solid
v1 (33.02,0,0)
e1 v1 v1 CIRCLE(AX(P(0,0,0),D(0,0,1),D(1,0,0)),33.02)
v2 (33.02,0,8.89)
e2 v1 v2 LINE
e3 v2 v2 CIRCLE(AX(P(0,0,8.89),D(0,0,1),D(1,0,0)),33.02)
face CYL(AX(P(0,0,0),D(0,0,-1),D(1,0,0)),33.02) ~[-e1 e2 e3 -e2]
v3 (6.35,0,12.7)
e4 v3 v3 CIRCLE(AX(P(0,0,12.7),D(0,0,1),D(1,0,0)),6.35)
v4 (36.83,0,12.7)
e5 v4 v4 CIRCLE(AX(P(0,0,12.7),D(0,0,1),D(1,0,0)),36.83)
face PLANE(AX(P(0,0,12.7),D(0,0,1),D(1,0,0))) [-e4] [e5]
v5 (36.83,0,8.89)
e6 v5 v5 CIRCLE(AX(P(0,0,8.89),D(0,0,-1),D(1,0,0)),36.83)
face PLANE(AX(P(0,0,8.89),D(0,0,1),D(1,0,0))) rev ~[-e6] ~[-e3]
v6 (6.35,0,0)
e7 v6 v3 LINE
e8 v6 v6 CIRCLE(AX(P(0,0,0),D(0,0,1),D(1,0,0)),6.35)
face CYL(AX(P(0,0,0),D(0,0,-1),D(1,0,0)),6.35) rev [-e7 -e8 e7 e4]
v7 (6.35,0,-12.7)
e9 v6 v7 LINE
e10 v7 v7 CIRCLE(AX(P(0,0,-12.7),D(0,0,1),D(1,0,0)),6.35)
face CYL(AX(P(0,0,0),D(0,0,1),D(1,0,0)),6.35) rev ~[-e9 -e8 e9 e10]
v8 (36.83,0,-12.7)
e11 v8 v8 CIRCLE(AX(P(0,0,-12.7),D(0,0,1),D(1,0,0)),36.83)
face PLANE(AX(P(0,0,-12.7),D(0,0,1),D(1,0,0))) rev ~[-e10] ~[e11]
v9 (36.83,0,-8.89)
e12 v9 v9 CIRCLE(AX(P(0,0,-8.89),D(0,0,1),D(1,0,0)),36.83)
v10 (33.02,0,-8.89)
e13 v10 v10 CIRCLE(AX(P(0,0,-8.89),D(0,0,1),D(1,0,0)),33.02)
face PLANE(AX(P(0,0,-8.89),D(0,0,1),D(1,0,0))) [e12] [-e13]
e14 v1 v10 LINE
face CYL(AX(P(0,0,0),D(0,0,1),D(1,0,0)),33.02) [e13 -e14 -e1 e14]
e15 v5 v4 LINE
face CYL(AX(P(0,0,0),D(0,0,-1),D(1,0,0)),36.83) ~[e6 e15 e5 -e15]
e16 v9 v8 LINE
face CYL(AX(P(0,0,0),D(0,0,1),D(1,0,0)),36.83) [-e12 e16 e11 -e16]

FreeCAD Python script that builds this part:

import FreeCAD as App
import Part
import Sketcher
Q = App.Units.Quantity

doc = App.newDocument("Part")
params = doc.addObject("Spreadsheet::Sheet", "Params")
for row, (alias, value) in enumerate([
    ("sketch1_diameter", "2.9 in"),
    ("sketch1_diameter2", "0.5 in"),
    ("pad1_length", "1 in"),
    ("sketch2_diameter", "3 in"),
    ("sketch2_diameter2", "2.6 in"),
    ("pocket1_length", "0.7 in"),
], start=1):
    params.set(f"A{row}", alias)
    params.set(f"B{row}", "=" + value)
    params.setAlias(f"B{row}", alias)

body = doc.addObject("PartDesign::Body", "Body")

sketch1 = doc.addObject("Sketcher::SketchObject", "Sketch")
body.addObject(sketch1)
sketch1.AttachmentSupport = (doc.XY_Plane, [""])
sketch1.MapMode = "FlatFace"
sketch1.addGeometry([
    Part.Circle(App.Vector(0, 0, 0), App.Vector(0, 0, 1), 37),
    Part.Circle(App.Vector(0, 0, 0), App.Vector(0, 0, 1), 6),
], False)
sketch1.addConstraint([
    Sketcher.Constraint("Coincident", 0, 3, -1, 1),
    Sketcher.Constraint("Coincident", 1, 3, -1, 1),
    Sketcher.Constraint("Diameter", 0, Q("2.9 in")),
    Sketcher.Constraint("Diameter", 1, Q("0.5 in")),
])
sketch1.setExpression("Constraints[2]", "Params.sketch1_diameter")
sketch1.setExpression("Constraints[3]", "Params.sketch1_diameter2")
pad1 = doc.addObject("PartDesign::Pad", "Pad")
body.addObject(pad1)
pad1.Profile = sketch1
pad1.setExpression("Length", "Params.pad1_length")
pad1.Midplane = True

sketch2 = doc.addObject("Sketcher::SketchObject", "Sketch001")
body.addObject(sketch2)
sketch2.AttachmentSupport = (doc.XY_Plane, [""])
sketch2.MapMode = "FlatFace"
sketch2.addGeometry([
    Part.Circle(App.Vector(0, 0, 0), App.Vector(0, 0, 1), 38),
    Part.Circle(App.Vector(0, 0, 0), App.Vector(0, 0, 1), 33),
], False)
sketch2.addConstraint([
    Sketcher.Constraint("Coincident", 0, 3, -1, 1),
    Sketcher.Constraint("Coincident", 1, 3, -1, 1),
    Sketcher.Constraint("Diameter", 0, Q("3 in")),
    Sketcher.Constraint("Diameter", 1, Q("2.6 in")),
])
sketch2.setExpression("Constraints[2]", "Params.sketch2_diameter")
sketch2.setExpression("Constraints[3]", "Params.sketch2_diameter2")
pocket1 = doc.addObject("PartDesign::Pocket", "Pocket")
body.addObject(pocket1)
pocket1.Profile = sketch2
pocket1.setExpression("Length", "Params.pocket1_length")
pocket1.Midplane = True

doc.recompute()
